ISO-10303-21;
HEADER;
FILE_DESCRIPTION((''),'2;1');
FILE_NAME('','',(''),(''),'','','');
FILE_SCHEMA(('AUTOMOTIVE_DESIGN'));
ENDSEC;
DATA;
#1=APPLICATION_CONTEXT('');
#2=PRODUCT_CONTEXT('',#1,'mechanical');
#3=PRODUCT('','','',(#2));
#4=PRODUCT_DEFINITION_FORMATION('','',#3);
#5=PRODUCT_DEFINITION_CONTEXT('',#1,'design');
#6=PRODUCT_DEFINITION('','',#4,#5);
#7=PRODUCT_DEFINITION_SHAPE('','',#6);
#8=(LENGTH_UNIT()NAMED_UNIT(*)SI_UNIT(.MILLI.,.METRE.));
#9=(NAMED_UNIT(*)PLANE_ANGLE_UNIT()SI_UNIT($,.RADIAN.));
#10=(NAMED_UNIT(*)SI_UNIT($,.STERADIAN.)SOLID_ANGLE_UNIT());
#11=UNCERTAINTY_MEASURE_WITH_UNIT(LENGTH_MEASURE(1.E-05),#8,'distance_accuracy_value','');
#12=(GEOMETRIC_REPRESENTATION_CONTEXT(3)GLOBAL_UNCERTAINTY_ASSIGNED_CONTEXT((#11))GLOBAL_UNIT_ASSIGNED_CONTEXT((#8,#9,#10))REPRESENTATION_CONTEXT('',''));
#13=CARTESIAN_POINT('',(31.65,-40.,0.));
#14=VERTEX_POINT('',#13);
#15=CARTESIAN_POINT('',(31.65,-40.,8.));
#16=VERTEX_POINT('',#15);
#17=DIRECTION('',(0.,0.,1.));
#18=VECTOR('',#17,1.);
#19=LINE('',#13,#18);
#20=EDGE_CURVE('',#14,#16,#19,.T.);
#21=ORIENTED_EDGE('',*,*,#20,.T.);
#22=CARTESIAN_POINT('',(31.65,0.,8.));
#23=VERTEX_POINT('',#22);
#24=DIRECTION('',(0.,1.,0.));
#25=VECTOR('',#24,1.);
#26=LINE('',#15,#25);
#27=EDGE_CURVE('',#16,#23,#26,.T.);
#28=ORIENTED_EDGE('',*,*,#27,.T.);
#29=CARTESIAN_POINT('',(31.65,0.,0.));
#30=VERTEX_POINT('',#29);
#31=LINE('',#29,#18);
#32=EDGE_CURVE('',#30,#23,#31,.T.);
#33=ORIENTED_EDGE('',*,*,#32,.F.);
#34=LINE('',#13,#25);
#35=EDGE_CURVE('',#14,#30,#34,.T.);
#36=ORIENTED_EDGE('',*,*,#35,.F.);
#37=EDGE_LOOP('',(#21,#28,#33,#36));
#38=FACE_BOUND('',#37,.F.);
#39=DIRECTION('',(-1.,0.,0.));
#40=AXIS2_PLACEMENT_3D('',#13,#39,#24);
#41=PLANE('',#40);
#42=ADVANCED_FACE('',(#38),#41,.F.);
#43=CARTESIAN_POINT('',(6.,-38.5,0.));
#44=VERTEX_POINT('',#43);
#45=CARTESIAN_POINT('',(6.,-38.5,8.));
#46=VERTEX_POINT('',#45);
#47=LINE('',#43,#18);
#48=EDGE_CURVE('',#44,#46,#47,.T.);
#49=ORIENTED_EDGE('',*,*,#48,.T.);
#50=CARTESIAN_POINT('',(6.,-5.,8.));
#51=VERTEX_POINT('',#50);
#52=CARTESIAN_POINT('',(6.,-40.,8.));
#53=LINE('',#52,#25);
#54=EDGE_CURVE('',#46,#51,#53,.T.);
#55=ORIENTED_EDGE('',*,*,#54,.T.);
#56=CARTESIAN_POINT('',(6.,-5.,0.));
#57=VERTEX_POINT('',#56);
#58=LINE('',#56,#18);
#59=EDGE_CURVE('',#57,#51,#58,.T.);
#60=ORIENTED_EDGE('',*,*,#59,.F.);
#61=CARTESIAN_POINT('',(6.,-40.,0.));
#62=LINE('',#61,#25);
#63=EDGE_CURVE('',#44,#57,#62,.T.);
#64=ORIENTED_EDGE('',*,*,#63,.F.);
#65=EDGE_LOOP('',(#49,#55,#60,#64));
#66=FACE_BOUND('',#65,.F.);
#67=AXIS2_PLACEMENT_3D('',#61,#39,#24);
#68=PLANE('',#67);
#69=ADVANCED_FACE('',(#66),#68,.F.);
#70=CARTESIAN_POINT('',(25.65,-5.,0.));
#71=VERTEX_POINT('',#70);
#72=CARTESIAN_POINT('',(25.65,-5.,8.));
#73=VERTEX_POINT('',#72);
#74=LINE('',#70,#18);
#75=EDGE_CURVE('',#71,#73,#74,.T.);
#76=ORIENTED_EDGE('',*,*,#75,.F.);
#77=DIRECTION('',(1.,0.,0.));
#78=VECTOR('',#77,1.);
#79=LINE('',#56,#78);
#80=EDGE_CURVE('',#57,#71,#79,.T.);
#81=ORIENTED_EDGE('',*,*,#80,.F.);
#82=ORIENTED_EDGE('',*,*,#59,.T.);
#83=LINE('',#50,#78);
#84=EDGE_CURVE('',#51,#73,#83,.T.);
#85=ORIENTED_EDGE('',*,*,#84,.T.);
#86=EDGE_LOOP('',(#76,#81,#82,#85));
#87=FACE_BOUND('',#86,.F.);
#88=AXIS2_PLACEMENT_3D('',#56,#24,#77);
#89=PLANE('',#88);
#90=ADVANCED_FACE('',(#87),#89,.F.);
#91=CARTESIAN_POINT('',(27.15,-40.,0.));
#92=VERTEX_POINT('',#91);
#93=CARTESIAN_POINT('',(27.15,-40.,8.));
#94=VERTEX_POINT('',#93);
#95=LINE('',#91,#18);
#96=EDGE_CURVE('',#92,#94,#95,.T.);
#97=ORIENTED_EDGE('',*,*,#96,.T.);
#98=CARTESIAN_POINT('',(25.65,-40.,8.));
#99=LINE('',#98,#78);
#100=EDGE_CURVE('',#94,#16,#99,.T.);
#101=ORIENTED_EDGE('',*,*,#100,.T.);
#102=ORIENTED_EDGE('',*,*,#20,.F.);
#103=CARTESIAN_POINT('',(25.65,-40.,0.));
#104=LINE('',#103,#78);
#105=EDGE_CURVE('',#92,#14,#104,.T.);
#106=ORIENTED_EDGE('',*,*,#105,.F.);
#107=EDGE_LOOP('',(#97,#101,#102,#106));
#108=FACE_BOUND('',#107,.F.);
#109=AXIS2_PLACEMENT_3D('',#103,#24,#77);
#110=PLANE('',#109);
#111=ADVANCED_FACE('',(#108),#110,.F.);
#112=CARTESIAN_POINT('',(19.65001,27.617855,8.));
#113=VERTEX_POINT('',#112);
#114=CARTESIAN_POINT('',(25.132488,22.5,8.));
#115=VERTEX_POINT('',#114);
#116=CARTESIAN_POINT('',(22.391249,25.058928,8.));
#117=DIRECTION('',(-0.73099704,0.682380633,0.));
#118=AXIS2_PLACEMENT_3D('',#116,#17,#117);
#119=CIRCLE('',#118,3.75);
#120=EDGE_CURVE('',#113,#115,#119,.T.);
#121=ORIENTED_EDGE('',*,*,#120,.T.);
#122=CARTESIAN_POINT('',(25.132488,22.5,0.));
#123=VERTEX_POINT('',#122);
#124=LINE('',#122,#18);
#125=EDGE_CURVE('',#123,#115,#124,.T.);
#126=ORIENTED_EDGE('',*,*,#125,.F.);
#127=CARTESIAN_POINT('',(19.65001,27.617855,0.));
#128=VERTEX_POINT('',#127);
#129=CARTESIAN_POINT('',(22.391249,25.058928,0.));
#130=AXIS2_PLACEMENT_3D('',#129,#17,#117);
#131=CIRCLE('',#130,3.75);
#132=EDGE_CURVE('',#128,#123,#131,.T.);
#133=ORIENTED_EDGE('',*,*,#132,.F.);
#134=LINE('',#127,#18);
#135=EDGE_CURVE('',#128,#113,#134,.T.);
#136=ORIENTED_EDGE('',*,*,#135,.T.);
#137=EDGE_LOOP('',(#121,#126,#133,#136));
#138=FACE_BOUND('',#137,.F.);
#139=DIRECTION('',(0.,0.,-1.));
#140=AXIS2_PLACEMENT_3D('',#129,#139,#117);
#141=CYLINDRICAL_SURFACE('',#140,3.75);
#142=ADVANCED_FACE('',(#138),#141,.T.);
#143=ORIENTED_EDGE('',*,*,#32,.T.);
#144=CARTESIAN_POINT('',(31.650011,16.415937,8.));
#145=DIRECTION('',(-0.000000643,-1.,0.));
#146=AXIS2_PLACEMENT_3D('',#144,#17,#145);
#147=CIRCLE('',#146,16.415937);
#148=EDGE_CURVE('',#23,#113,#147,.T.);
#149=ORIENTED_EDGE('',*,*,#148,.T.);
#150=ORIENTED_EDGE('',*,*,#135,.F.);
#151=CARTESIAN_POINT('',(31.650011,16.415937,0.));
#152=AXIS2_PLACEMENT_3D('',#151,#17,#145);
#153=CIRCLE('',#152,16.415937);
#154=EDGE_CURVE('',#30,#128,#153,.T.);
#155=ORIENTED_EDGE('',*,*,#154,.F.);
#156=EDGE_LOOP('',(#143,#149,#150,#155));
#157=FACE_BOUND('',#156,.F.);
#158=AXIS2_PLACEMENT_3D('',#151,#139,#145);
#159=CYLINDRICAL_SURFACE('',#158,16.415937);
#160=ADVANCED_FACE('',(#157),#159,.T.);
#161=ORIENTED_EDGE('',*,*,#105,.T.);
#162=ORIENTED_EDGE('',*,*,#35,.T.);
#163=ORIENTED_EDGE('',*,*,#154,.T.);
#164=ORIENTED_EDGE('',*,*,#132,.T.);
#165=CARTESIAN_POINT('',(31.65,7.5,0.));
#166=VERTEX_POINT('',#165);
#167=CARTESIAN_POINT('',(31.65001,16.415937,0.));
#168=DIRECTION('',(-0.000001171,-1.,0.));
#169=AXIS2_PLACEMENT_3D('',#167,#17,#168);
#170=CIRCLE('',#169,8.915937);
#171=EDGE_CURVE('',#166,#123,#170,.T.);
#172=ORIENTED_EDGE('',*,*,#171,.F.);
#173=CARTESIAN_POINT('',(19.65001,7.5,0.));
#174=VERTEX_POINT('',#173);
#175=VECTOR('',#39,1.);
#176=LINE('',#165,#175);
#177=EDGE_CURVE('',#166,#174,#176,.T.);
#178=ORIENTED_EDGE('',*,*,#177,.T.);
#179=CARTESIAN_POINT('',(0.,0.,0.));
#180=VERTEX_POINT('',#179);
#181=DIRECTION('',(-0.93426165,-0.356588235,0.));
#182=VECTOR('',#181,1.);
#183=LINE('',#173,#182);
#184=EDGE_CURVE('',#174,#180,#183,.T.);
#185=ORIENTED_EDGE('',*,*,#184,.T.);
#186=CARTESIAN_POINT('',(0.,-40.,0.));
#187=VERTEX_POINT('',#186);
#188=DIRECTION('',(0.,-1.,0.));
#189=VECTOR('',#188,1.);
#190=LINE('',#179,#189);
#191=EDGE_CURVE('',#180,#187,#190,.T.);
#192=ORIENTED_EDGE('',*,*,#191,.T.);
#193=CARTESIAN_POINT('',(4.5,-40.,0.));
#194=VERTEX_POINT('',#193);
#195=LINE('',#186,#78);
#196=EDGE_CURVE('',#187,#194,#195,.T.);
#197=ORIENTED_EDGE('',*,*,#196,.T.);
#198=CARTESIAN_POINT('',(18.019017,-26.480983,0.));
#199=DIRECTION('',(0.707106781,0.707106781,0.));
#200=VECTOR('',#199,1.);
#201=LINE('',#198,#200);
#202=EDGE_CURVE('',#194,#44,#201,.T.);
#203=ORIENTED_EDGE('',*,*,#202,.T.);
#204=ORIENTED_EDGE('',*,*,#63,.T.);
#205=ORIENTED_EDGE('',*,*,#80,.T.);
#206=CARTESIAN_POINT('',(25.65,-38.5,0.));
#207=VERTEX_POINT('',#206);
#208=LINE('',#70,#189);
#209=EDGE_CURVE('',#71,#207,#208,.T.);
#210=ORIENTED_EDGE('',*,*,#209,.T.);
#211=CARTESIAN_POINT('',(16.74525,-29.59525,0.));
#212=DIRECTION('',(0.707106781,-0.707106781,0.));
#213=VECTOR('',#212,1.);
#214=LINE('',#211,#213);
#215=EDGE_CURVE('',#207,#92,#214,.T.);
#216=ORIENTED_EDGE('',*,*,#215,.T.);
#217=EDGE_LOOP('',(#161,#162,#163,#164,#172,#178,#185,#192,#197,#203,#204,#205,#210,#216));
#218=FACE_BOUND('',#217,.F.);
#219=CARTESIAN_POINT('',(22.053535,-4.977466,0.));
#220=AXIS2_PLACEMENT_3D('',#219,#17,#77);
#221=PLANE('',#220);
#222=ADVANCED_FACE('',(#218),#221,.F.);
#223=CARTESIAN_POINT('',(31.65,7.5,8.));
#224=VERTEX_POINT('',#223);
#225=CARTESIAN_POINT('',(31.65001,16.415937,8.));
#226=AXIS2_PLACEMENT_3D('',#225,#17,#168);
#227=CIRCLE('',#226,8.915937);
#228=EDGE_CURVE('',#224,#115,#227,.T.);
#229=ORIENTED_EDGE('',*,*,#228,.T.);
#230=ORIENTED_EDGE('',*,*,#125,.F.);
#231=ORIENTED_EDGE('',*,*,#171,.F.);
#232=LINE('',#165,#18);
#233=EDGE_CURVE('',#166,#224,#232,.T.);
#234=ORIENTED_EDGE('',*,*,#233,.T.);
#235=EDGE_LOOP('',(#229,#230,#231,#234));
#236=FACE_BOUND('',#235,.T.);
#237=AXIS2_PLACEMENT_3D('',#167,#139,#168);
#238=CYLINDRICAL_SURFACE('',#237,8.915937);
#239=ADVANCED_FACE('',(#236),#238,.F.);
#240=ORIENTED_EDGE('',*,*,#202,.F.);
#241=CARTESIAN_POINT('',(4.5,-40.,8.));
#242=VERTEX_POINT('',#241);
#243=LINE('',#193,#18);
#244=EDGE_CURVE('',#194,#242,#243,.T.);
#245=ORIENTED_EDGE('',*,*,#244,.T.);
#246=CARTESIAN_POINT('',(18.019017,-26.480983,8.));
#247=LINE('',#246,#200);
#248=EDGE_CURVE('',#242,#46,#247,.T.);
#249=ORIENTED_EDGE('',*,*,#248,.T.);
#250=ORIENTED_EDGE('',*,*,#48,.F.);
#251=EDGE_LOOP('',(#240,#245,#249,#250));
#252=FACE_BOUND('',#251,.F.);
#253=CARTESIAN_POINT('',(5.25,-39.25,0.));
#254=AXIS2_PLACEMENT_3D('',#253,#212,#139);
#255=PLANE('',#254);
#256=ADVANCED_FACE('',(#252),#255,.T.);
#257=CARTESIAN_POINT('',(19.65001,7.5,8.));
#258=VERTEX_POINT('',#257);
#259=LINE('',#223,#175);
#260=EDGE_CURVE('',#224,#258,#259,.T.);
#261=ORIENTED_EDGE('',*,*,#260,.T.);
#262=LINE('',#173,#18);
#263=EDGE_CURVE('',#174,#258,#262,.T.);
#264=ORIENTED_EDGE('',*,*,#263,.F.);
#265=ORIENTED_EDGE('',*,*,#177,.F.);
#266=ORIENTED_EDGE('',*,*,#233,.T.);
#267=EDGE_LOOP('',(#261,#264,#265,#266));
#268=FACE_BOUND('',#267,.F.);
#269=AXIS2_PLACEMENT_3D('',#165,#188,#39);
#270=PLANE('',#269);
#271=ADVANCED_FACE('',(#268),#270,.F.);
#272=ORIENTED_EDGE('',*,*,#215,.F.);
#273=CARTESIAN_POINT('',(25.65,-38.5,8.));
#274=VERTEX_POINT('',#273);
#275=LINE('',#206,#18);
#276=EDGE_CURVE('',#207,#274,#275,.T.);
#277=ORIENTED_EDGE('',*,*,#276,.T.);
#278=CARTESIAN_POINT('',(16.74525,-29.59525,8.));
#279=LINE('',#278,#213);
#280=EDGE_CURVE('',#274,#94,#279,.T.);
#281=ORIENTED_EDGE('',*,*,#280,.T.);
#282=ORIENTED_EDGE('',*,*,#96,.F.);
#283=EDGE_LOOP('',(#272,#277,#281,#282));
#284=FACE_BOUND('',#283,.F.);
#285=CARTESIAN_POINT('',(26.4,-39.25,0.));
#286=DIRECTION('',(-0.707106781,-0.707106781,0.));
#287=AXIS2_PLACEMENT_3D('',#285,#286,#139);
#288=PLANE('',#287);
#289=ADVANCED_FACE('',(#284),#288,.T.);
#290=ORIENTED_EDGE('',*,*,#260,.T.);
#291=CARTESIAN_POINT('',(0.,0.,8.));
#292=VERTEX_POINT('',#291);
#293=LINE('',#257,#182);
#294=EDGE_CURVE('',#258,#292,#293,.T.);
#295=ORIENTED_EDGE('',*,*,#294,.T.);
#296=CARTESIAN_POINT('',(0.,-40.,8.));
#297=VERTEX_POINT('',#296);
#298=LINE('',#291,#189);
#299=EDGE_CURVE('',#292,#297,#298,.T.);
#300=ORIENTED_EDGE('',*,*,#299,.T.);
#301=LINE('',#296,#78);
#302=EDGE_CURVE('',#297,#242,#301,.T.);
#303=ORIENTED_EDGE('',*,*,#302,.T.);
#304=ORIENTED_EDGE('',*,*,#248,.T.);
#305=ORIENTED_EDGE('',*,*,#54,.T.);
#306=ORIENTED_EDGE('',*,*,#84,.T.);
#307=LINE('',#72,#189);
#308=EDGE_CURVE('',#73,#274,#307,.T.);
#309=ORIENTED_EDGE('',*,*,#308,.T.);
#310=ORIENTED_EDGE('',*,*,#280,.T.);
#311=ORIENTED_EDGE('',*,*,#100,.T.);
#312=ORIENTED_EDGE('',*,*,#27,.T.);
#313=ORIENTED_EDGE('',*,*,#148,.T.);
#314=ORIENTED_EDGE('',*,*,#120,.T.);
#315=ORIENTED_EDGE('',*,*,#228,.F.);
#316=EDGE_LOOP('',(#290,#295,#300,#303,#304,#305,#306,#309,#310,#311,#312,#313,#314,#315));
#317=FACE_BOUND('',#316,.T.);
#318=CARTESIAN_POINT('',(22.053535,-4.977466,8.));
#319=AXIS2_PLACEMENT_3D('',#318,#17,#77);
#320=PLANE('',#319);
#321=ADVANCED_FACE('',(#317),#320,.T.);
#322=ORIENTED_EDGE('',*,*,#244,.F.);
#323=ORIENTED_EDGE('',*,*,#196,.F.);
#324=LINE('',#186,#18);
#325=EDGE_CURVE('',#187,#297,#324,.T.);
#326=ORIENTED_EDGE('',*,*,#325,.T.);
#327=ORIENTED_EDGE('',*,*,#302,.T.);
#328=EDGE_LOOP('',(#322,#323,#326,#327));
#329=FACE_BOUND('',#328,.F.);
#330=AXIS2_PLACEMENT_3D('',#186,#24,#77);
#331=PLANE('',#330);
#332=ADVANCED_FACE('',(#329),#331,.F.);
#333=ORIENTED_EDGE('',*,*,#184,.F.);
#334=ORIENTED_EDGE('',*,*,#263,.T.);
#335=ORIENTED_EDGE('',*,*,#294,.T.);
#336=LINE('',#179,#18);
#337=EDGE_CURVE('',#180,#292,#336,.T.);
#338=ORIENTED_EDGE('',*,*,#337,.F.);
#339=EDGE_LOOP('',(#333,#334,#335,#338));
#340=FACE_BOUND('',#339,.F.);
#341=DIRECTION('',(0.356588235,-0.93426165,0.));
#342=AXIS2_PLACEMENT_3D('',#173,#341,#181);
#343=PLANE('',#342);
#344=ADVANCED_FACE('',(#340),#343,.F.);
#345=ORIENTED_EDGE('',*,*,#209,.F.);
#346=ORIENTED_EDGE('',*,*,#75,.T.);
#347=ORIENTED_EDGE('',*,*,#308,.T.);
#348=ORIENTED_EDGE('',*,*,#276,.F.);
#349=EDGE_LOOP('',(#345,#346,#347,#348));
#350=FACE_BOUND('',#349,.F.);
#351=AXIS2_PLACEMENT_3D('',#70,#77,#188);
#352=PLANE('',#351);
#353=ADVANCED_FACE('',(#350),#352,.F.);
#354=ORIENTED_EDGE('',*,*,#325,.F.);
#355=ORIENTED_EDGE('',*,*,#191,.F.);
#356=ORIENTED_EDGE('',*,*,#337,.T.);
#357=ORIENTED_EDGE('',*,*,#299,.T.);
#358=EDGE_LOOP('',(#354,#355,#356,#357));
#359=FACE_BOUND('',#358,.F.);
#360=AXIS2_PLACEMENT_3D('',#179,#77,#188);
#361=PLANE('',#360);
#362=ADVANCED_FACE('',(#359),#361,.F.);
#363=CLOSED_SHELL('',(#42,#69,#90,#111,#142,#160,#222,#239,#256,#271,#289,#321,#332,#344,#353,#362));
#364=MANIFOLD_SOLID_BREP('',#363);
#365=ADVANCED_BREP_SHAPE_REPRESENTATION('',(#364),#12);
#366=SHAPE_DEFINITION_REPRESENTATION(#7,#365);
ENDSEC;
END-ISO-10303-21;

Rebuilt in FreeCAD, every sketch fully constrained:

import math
import FreeCAD as App
import Part
import Sketcher

V = App.Vector
Q = App.Units.Quantity


def edges_at(feature, points):
    """Names of the edges that pass closest to the given points."""
    edges = feature.Shape.Edges
    near = lambda p: min(range(len(edges)), key=lambda i: edges[i].distToShape(Part.Vertex(*p))[0])
    return sorted({f"Edge{near(p) + 1}" for p in points})

doc = App.newDocument("Part")
body = doc.addObject("PartDesign::Body", "Body")

sketch1 = body.newObject("Sketcher::SketchObject", "Sketch")
sketch1.AttachmentSupport = (doc.getObject("XY_Plane"), [""])
sketch1.MapMode = "FlatFace"
sketch1.addGeometry(Part.ArcOfCircle(Part.Circle(V(31.7, 16.4, 0), V(0, 0, 1), 16.4), math.radians(-90), math.radians(137)), False)
sketch1.addGeometry(Part.ArcOfCircle(Part.Circle(V(22.4, 25.1, 0), V(0, 0, 1), 3.8), math.radians(137), math.radians(317)), False)
sketch1.addGeometry(Part.ArcOfCircle(Part.Circle(V(31.7, 16.4, 0), V(0, 0, 1), 8.9), math.radians(-90), math.radians(137)), False)
sketch1.addGeometry(Part.LineSegment(V(31.6, 7.5, 0), V(19.7, 7.5, 0)), False)
sketch1.addGeometry(Part.LineSegment(V(19.7, 7.5, 0), V(0, 0, 0)), False)
sketch1.addGeometry(Part.LineSegment(V(0, 0, 0), V(0, -40, 0)), False)
sketch1.addGeometry(Part.LineSegment(V(0, -40, 0), V(6, -40, 0)), False)
sketch1.addGeometry(Part.LineSegment(V(6, -40, 0), V(6, -5, 0)), False)
sketch1.addGeometry(Part.LineSegment(V(6, -5, 0), V(25.6, -5, 0)), False)
sketch1.addGeometry(Part.LineSegment(V(25.6, -5, 0), V(25.6, -40, 0)), False)
sketch1.addGeometry(Part.LineSegment(V(25.6, -40, 0), V(31.6, -40, 0)), False)
sketch1.addGeometry(Part.LineSegment(V(31.6, -40, 0), V(31.6, 0, 0)), False)
sketch1.addConstraint(Sketcher.Constraint("Tangent", 0, 2, 1, 1))
sketch1.addConstraint(Sketcher.Constraint("Tangent", 1, 2, 2, 2))
sketch1.addConstraint(Sketcher.Constraint("Tangent", 2, 1, 3, 1))
sketch1.addConstraint(Sketcher.Constraint("Coincident", 3, 2, 4, 1))
sketch1.addConstraint(Sketcher.Constraint("Coincident", 4, 2, 5, 1))
sketch1.addConstraint(Sketcher.Constraint("Coincident", 5, 2, 6, 1))
sketch1.addConstraint(Sketcher.Constraint("Coincident", 6, 2, 7, 1))
sketch1.addConstraint(Sketcher.Constraint("Coincident", 7, 2, 8, 1))
sketch1.addConstraint(Sketcher.Constraint("Coincident", 8, 2, 9, 1))
sketch1.addConstraint(Sketcher.Constraint("Coincident", 9, 2, 10, 1))
sketch1.addConstraint(Sketcher.Constraint("Coincident", 10, 2, 11, 1))
sketch1.addConstraint(Sketcher.Constraint("Coincident", 11, 2, 0, 1))
sketch1.addConstraint(Sketcher.Constraint("Horizontal", 3))
sketch1.addConstraint(Sketcher.Constraint("Vertical", 5))
sketch1.addConstraint(Sketcher.Constraint("Horizontal", 6))
sketch1.addConstraint(Sketcher.Constraint("Vertical", 7))
sketch1.addConstraint(Sketcher.Constraint("Horizontal", 8))
sketch1.addConstraint(Sketcher.Constraint("Vertical", 9))
sketch1.addConstraint(Sketcher.Constraint("Horizontal", 10))
sketch1.addConstraint(Sketcher.Constraint("Vertical", 11))
sketch1.addConstraint(Sketcher.Constraint("Coincident", 4, 2, -1, 1))
sketch1.addConstraint(Sketcher.Constraint("Coincident", 2, 3, 0, 3))
sketch1.addConstraint(Sketcher.Constraint("PointOnObject", 11, 2, -1))
sketch1.addConstraint(Sketcher.Constraint("Horizontal", 6, 2, 9, 2))
sketch1.addConstraint(Sketcher.Constraint("Vertical", 0, 2, 3, 2))
sketch1.addConstraint(Sketcher.Constraint("Vertical", 2, 1, 10, 2))
sketch1.addConstraint(Sketcher.Constraint("Equal", 6, 10))
sketch1.addConstraint(Sketcher.Constraint("DistanceX", 6, 1, 6, 2, Q("6 mm")))
sketch1.addConstraint(Sketcher.Constraint("DistanceY", 5, 2, 5, 1, Q("40 mm")))
sketch1.addConstraint(Sketcher.Constraint("DistanceY", 7, 1, 7, 2, Q("35 mm")))
sketch1.addConstraint(Sketcher.Constraint("Radius", 1, Q("3.75 mm")))
sketch1.addConstraint(Sketcher.Constraint("DistanceX", 0, 2, 0, 3, Q("12.000001 mm")))
sketch1.addConstraint(Sketcher.Constraint("DistanceY", 2, 1, 1, 2, Q("15 mm")))
sketch1.addConstraint(Sketcher.Constraint("DistanceX", 8, 1, 8, 2, Q("19.65 mm")))
pad1 = body.newObject("PartDesign::Pad", "Pad")
pad1.Profile = sketch1
pad1.Length = 8
doc.recompute()

chamfer = body.newObject("PartDesign::Chamfer", "Chamfer")
chamfer.Base = (pad1, edges_at(pad1, [(6, -40, 4), (25.65, -40, 4)]))
chamfer.Size = 1.5

doc.recompute()
